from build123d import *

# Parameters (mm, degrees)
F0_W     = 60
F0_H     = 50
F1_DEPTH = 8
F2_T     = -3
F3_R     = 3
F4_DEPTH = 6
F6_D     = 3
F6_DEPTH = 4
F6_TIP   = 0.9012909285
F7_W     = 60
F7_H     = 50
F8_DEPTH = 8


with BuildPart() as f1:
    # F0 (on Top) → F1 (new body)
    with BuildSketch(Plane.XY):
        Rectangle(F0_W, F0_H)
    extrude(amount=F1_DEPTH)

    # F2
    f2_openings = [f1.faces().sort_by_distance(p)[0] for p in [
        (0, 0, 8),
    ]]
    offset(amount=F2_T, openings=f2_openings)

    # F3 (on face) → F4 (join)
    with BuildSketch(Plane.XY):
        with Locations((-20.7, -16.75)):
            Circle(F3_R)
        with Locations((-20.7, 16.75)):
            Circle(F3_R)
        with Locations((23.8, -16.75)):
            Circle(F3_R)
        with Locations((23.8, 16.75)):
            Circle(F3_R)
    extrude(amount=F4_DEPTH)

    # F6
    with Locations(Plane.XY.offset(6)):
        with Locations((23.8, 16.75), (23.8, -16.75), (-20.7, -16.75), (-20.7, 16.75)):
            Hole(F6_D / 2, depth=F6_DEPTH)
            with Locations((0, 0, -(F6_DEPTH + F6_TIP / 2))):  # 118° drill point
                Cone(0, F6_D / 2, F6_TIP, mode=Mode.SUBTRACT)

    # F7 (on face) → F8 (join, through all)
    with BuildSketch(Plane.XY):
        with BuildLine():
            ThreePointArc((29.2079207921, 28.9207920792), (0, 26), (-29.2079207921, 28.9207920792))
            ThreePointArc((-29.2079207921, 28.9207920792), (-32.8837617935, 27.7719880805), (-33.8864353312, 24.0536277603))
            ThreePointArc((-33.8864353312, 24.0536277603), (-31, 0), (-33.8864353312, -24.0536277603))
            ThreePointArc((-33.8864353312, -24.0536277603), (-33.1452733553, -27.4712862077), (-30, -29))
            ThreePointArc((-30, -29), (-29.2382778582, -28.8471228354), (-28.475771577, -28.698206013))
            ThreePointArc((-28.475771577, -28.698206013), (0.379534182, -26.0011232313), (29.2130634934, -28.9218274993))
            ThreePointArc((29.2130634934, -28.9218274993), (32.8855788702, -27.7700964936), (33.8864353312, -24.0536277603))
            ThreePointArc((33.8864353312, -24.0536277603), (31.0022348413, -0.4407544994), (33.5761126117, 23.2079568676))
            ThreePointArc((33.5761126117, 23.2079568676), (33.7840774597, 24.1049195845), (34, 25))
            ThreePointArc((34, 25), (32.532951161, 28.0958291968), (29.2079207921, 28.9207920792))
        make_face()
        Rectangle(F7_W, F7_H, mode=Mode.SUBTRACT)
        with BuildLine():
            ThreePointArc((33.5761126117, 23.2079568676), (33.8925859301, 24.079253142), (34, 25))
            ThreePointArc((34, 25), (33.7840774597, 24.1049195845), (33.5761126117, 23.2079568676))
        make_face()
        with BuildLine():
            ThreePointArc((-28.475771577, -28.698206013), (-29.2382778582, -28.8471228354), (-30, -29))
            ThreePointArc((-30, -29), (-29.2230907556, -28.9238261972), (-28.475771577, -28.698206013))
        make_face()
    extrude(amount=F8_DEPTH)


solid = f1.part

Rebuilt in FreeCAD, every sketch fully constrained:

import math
import FreeCAD as App
import Part
import Sketcher
from FreeCAD import Vector
Q = App.Units.Quantity


def faces_at(feature, points):
    """Names of the faces that lie closest to the given points."""
    faces = feature.Shape.Faces
    near = lambda p: min(range(len(faces)), key=lambda i: faces[i].distToShape(Part.Vertex(*p))[0])
    return sorted({f"Face{near(p) + 1}" for p in points})

doc = App.newDocument("Part")
params = doc.addObject("Spreadsheet::Sheet", "Params")
for row, (alias, value) in enumerate([
    ("sketch1_width", "60 mm"),
    ("sketch1_height", "50 mm"),
    ("pad1_length", "8 mm"),
    ("thickness_wall", "3 mm"),
    ("sketch2_diameter", "6 mm"),
    ("pad2_length", "6 mm"),
    ("sketch3_diameter", "3 mm"),
    ("hole_diameter", "3 mm"),
    ("hole_depth", "4 mm"),
    ("sketch4_radius", "4 mm"),
    ("sketch4_radius2", "147.5 mm"),
    ("sketch4_width", "60 mm"),
    ("sketch4_height", "50 mm"),
    ("pad3_length", "8 mm"),
], start=1):
    params.set(f"A{row}", alias)
    params.set(f"B{row}", "=" + value)
    params.setAlias(f"B{row}", alias)

body = doc.addObject("PartDesign::Body", "Body")

# Sketch on XY plane
sketch1 = body.newObject("Sketcher::SketchObject", "Sketch")
sketch1.AttachmentSupport = (doc.getObject("XY_Plane"), [""])
sketch1.MapMode = "FlatFace"
sketch1.addGeometry(Part.LineSegment(Vector(-30, 25, 0), Vector(-30, -25, 0)), False)
sketch1.addGeometry(Part.LineSegment(Vector(-30, -25, 0), Vector(30, -25, 0)), False)
sketch1.addGeometry(Part.LineSegment(Vector(30, -25, 0), Vector(30, 25, 0)), False)
sketch1.addGeometry(Part.LineSegment(Vector(30, 25, 0), Vector(-30, 25, 0)), False)
sketch1.addConstraint(Sketcher.Constraint("Coincident", 0, 2, 1, 1))
sketch1.addConstraint(Sketcher.Constraint("Coincident", 1, 2, 2, 1))
sketch1.addConstraint(Sketcher.Constraint("Coincident", 2, 2, 3, 1))
sketch1.addConstraint(Sketcher.Constraint("Coincident", 3, 2, 0, 1))
sketch1.addConstraint(Sketcher.Constraint("Vertical", 0))
sketch1.addConstraint(Sketcher.Constraint("Horizontal", 1))
sketch1.addConstraint(Sketcher.Constraint("Vertical", 2))
sketch1.addConstraint(Sketcher.Constraint("Horizontal", 3))
sketch1.addConstraint(Sketcher.Constraint("Symmetric", 0, 2, 2, 2, -1, 1))
sketch1.addConstraint(Sketcher.Constraint("DistanceX", 1, 1, 1, 2, Q("60 mm")))
sketch1.addConstraint(Sketcher.Constraint("DistanceY", 0, 2, 0, 1, Q("50 mm")))
sketch1.setExpression("Constraints[9]", "Params.sketch1_width")
sketch1.setExpression("Constraints[10]", "Params.sketch1_height")
pad1 = body.newObject("PartDesign::Pad", "Pad")
pad1.Profile = sketch1
pad1.setExpression("Length", "Params.pad1_length")
doc.recompute()

thickness = body.newObject("PartDesign::Thickness", "Thickness")
thickness.Base = (pad1, faces_at(pad1, [(0, 0, 8)]))
thickness.setExpression("Value", "Params.thickness_wall")
thickness.Reversed = True
thickness.Join = "Arc"

# Sketch on XY plane
sketch2 = body.newObject("Sketcher::SketchObject", "Sketch001")
sketch2.AttachmentSupport = (doc.getObject("XY_Plane"), [""])
sketch2.MapMode = "FlatFace"
sketch2.addGeometry(Part.Circle(Vector(-20.7, -16.75, 0), Vector(0, 0, 1), 3), False)
sketch2.addGeometry(Part.Circle(Vector(-20.7, 16.75, 0), Vector(0, 0, 1), 3), False)
sketch2.addGeometry(Part.Circle(Vector(23.8, -16.75, 0), Vector(0, 0, 1), 3), False)
sketch2.addGeometry(Part.Circle(Vector(23.8, 16.75, 0), Vector(0, 0, 1), 3), False)
sketch2.addConstraint(Sketcher.Constraint("Equal", 0, 1))
sketch2.addConstraint(Sketcher.Constraint("Equal", 1, 2))
sketch2.addConstraint(Sketcher.Constraint("Equal", 2, 3))
sketch2.addConstraint(Sketcher.Constraint("Symmetric", 0, 3, 1, 3, -1))
sketch2.addConstraint(Sketcher.Constraint("Symmetric", 2, 3, 3, 3, -1))
sketch2.addConstraint(Sketcher.Constraint("Horizontal", 0, 3, 2, 3))
sketch2.addConstraint(Sketcher.Constraint("Diameter", 0, Q("6 mm")))
sketch2.addConstraint(Sketcher.Constraint("DistanceX", 0, 3, -1, 1, Q("20.7 mm")))
sketch2.addConstraint(Sketcher.Constraint("DistanceX", -1, 1, 2, 3, Q("23.8 mm")))
sketch2.addConstraint(Sketcher.Constraint("DistanceY", 0, 3, 1, 3, Q("33.5 mm")))
sketch2.setExpression("Constraints[6]", "Params.sketch2_diameter")
pad2 = body.newObject("PartDesign::Pad", "Pad001")
pad2.Profile = sketch2
pad2.setExpression("Length", "Params.pad2_length")

# Sketch on XY plane
sketch3 = body.newObject("Sketcher::SketchObject", "Sketch002")
sketch3.AttachmentSupport = (doc.getObject("XY_Plane"), [""])
sketch3.MapMode = "FlatFace"
sketch3.AttachmentOffset = App.Placement(Vector(0, 0, 6), App.Rotation())
sketch3.addGeometry(Part.Circle(Vector(23.8, 16.75, 0), Vector(0, 0, 1), 1.5), False)
sketch3.addGeometry(Part.Circle(Vector(23.8, -16.75, 0), Vector(0, 0, 1), 1.5), False)
sketch3.addGeometry(Part.Circle(Vector(-20.7, -16.75, 0), Vector(0, 0, 1), 1.5), False)
sketch3.addGeometry(Part.Circle(Vector(-20.7, 16.75, 0), Vector(0, 0, 1), 1.5), False)
sketch3.addConstraint(Sketcher.Constraint("Equal", 0, 1))
sketch3.addConstraint(Sketcher.Constraint("Equal", 1, 2))
sketch3.addConstraint(Sketcher.Constraint("Equal", 2, 3))
sketch3.addConstraint(Sketcher.Constraint("Symmetric", 0, 3, 1, 3, -1))
sketch3.addConstraint(Sketcher.Constraint("Symmetric", 2, 3, 3, 3, -1))
sketch3.addConstraint(Sketcher.Constraint("Horizontal", 1, 3, 2, 3))
sketch3.addConstraint(Sketcher.Constraint("Diameter", 0, Q("3 mm")))
sketch3.addConstraint(Sketcher.Constraint("DistanceX", -1, 1, 0, 3, Q("23.8 mm")))
sketch3.addConstraint(Sketcher.Constraint("DistanceX", 2, 3, -1, 1, Q("20.7 mm")))
sketch3.addConstraint(Sketcher.Constraint("DistanceY", 1, 3, 0, 3, Q("33.5 mm")))
sketch3.setExpression("Constraints[6]", "Params.sketch3_diameter")
doc.recompute()
hole = body.newObject("PartDesign::Hole", "Hole")
hole.Profile = sketch3
hole.ThreadType = "None"
hole.setExpression("Diameter", "Params.hole_diameter")
hole.DepthType = "Dimension"
hole.setExpression("Depth", "Params.hole_depth")
hole.DrillPoint = "Angled"
hole.DrillPointAngle = 118

# Sketch on XY plane
sketch4 = body.newObject("Sketcher::SketchObject", "Sketch003")
sketch4.AttachmentSupport = (doc.getObject("XY_Plane"), [""])
sketch4.MapMode = "FlatFace"
sketch4.addGeometry(Part.ArcOfCircle(Part.Circle(Vector(0, 173.5, 0), Vector(0, 0, 1), 147.5), math.radians(-101.421186), math.radians(-78.578814)), False)
sketch4.addGeometry(Part.ArcOfCircle(Part.Circle(Vector(-30, 25, 0), Vector(0, 0, 1), 4), math.radians(78.578814), math.radians(193.685547)), False)
sketch4.addGeometry(Part.ArcOfCircle(Part.Circle(Vector(-132.666667, 0, 0), Vector(0, 0, 1), 101.666667), math.radians(-13.685547), math.radians(13.685547)), False)
sketch4.addGeometry(Part.ArcOfCircle(Part.Circle(Vector(-30, -25, 0), Vector(0, 0, 1), 4), math.radians(166.314453), math.radians(270)), False)
sketch4.addGeometry(Part.ArcOfCircle(Part.Circle(Vector(-30, -25, 0), Vector(0, 0, 1), 4), math.radians(-90), math.radians(-67.600822)), False)
sketch4.addGeometry(Part.ArcOfCircle(Part.Circle(Vector(-0.2, -175.506667, 0), Vector(0, 0, 1), 149.506667), math.radians(78.653956), math.radians(100.901851)), False)
sketch4.addGeometry(Part.ArcOfCircle(Part.Circle(Vector(30, -25, 0), Vector(0, 0, 1), 4), math.radians(-101.346044), math.radians(13.685547)), False)
sketch4.addGeometry(Part.ArcOfCircle(Part.Circle(Vector(134.676454, 0.239977, 0), Vector(0, 0, 1), 103.676454), math.radians(167.200784), math.radians(193.551621)), False)
sketch4.addGeometry(Part.ArcOfCircle(Part.Circle(Vector(30, 25, 0), Vector(0, 0, 1), 4), math.radians(-26.616129), math.radians(0)), False)
sketch4.addGeometry(Part.ArcOfCircle(Part.Circle(Vector(30, 25, 0), Vector(0, 0, 1), 4), math.radians(0), math.radians(101.421186)), False)
sketch4.addGeometry(Part.LineSegment(Vector(30, -25, 0), Vector(-30, -25, 0)), False)
sketch4.addGeometry(Part.LineSegment(Vector(-30, -25, 0), Vector(-30, 25, 0)), False)
sketch4.addGeometry(Part.LineSegment(Vector(-30, 25, 0), Vector(30, 25, 0)), False)
sketch4.addGeometry(Part.LineSegment(Vector(30, 25, 0), Vector(30, -25, 0)), False)
sketch4.addConstraint(Sketcher.Constraint("Tangent", 0, 1, 1, 1))
sketch4.addConstraint(Sketcher.Constraint("Tangent", 1, 2, 2, 2))
sketch4.addConstraint(Sketcher.Constraint("Tangent", 2, 1, 3, 1))
sketch4.addConstraint(Sketcher.Constraint("Tangent", 3, 2, 4, 1))
sketch4.addConstraint(Sketcher.Constraint("Coincident", 4, 2, 5, 2))
sketch4.addConstraint(Sketcher.Constraint("Tangent", 5, 1, 6, 1))
sketch4.addConstraint(Sketcher.Constraint("Coincident", 6, 2, 7, 2))
sketch4.addConstraint(Sketcher.Constraint("Coincident", 7, 1, 8, 1))
sketch4.addConstraint(Sketcher.Constraint("Tangent", 8, 2, 9, 1))
sketch4.addConstraint(Sketcher.Constraint("Tangent", 9, 2, 0, 2))
sketch4.addConstraint(Sketcher.Constraint("Coincident", 10, 2, 11, 1))
sketch4.addConstraint(Sketcher.Constraint("Coincident", 11, 2, 12, 1))
sketch4.addConstraint(Sketcher.Constraint("Coincident", 12, 2, 13, 1))
sketch4.addConstraint(Sketcher.Constraint("Coincident", 13, 2, 10, 1))
sketch4.addConstraint(Sketcher.Constraint("Horizontal", 10))
sketch4.addConstraint(Sketcher.Constraint("Vertical", 11))
sketch4.addConstraint(Sketcher.Constraint("Horizontal", 12))
sketch4.addConstraint(Sketcher.Constraint("Vertical", 13))
sketch4.addConstraint(Sketcher.Constraint("Coincident", 10, 2, 3, 3))
sketch4.addConstraint(Sketcher.Constraint("Coincident", 11, 2, 1, 3))
sketch4.addConstraint(Sketcher.Constraint("Coincident", 12, 2, 8, 3))
sketch4.addConstraint(Sketcher.Constraint("Coincident", 13, 2, 6, 3))
sketch4.addConstraint(Sketcher.Constraint("Equal", 1, 3))
sketch4.addConstraint(Sketcher.Constraint("Equal", 3, 4))
sketch4.addConstraint(Sketcher.Constraint("Equal", 4, 6))
sketch4.addConstraint(Sketcher.Constraint("Equal", 6, 8))
sketch4.addConstraint(Sketcher.Constraint("Equal", 8, 9))
sketch4.addConstraint(Sketcher.Constraint("Symmetric", 1, 3, 6, 3, -1, 1))
sketch4.addConstraint(Sketcher.Constraint("Horizontal", 2, 1, 6, 2))
sketch4.addConstraint(Sketcher.Constraint("Horizontal", 9, 3, 8, 2))
sketch4.addConstraint(Sketcher.Constraint("Vertical", 4, 3, 3, 2))
sketch4.addConstraint(Sketcher.Constraint("Radius", 1, Q("4 mm")))
sketch4.addConstraint(Sketcher.Constraint("Radius", 0, Q("147.5 mm")))
sketch4.addConstraint(Sketcher.Constraint("DistanceX", 10, 2, 10, 1, Q("60 mm")))
sketch4.addConstraint(Sketcher.Constraint("DistanceY", 11, 1, 11, 2, Q("50 mm")))
sketch4.addConstraint(Sketcher.Constraint("DistanceX", 5, 3, -1, 1, Q("0.2 mm")))
sketch4.addConstraint(Sketcher.Constraint("Radius", 2, Q("101.666667 mm")))
sketch4.addConstraint(Sketcher.Constraint("Radius", 5, Q("149.506667 mm")))
sketch4.addConstraint(Sketcher.Constraint("Radius", 7, Q("103.676454 mm")))
sketch4.addConstraint(Sketcher.Constraint("DistanceX", 5, 1, 7, 1, Q("4.363049 mm")))
sketch4.setExpression("Constraints[31]", "Params.sketch4_radius")
sketch4.setExpression("Constraints[32]", "Params.sketch4_radius2")
sketch4.setExpression("Constraints[33]", "Params.sketch4_width")
sketch4.setExpression("Constraints[34]", "Params.sketch4_height")
pad3 = body.newObject("PartDesign::Pad", "Pad002")
pad3.Profile = sketch4
pad3.setExpression("Length", "Params.pad3_length")

doc.recompute()
